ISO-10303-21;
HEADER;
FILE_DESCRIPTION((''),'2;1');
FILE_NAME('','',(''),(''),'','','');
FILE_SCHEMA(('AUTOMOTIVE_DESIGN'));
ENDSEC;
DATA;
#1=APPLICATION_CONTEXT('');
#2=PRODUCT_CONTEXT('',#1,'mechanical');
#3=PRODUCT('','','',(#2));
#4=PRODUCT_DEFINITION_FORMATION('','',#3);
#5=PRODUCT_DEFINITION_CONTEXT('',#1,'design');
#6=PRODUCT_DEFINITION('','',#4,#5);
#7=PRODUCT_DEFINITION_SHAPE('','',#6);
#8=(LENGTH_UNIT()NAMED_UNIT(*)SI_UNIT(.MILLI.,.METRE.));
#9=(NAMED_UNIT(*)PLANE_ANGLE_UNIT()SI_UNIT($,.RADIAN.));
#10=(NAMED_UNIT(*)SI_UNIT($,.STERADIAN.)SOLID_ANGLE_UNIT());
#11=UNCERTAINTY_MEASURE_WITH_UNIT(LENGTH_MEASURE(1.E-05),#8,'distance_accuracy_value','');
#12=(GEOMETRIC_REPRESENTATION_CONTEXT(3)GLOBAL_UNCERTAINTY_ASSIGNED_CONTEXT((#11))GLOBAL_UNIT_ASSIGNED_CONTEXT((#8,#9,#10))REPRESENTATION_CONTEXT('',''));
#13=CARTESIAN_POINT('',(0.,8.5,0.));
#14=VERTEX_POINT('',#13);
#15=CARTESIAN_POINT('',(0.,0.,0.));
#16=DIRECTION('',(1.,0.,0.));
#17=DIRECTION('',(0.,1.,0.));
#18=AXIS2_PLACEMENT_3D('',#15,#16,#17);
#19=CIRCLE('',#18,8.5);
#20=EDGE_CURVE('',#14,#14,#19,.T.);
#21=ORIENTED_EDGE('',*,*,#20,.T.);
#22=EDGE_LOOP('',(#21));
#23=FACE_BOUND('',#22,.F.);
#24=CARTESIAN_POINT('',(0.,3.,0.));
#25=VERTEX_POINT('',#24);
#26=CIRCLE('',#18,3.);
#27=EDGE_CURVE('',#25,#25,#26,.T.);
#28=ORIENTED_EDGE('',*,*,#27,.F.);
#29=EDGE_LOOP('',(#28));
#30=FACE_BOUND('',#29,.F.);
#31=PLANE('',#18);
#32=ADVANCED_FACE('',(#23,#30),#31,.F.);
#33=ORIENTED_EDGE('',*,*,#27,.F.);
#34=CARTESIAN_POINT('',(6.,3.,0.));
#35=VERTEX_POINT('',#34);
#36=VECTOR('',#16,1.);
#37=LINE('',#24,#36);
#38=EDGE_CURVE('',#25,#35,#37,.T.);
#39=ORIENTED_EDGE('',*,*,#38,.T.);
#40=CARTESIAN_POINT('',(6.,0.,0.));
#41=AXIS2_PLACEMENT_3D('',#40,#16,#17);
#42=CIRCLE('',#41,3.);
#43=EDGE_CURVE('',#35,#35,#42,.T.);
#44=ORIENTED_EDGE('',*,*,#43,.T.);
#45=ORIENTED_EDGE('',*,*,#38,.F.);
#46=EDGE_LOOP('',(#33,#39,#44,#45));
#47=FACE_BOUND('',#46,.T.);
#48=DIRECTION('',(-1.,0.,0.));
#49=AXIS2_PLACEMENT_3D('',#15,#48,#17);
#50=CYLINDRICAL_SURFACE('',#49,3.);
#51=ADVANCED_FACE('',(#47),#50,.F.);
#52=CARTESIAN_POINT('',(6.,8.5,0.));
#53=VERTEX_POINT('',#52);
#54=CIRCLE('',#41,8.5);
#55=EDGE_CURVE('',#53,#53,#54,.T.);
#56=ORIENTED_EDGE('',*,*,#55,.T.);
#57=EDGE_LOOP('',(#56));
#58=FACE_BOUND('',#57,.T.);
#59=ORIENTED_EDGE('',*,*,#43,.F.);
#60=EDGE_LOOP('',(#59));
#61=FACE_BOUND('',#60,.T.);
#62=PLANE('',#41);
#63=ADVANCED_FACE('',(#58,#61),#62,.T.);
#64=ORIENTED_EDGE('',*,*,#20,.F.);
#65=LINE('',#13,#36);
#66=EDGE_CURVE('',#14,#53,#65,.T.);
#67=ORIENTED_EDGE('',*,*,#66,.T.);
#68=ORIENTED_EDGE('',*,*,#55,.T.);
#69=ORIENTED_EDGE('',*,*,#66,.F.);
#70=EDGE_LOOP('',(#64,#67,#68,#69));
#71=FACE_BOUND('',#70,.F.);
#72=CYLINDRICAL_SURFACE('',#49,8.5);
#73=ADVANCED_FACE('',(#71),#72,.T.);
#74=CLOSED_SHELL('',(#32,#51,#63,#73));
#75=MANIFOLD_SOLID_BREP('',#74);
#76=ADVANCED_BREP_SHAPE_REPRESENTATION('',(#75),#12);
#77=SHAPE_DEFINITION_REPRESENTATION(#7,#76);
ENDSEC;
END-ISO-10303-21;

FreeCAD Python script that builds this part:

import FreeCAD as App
import Part
import Sketcher
from FreeCAD import Vector

doc = App.newDocument("Part")
body = doc.addObject("PartDesign::Body", "Body")

# Sketch on YZ plane
sketch1 = body.newObject("Sketcher::SketchObject", "Sketch")
sketch1.AttachmentSupport = (doc.getObject("YZ_Plane"), [""])
sketch1.MapMode = "FlatFace"
sketch1.addGeometry([
    Part.Circle(Vector(0, 0, 0), Vector(0, 0, 1), 8.5),
    Part.Circle(Vector(0, 0, 0), Vector(0, 0, 1), 3),
], False)
sketch1.addConstraint([
    Sketcher.Constraint("Coincident", 0, 3, -1, 1),
    Sketcher.Constraint("Coincident", 1, 3, -1, 1),
    Sketcher.Constraint("Diameter", 0, 17.0),
    Sketcher.Constraint("Diameter", 1, 6.0),
])
pad1 = body.newObject("PartDesign::Pad", "Pad")
pad1.Profile = sketch1
pad1.Length = 6

doc.recompute()
